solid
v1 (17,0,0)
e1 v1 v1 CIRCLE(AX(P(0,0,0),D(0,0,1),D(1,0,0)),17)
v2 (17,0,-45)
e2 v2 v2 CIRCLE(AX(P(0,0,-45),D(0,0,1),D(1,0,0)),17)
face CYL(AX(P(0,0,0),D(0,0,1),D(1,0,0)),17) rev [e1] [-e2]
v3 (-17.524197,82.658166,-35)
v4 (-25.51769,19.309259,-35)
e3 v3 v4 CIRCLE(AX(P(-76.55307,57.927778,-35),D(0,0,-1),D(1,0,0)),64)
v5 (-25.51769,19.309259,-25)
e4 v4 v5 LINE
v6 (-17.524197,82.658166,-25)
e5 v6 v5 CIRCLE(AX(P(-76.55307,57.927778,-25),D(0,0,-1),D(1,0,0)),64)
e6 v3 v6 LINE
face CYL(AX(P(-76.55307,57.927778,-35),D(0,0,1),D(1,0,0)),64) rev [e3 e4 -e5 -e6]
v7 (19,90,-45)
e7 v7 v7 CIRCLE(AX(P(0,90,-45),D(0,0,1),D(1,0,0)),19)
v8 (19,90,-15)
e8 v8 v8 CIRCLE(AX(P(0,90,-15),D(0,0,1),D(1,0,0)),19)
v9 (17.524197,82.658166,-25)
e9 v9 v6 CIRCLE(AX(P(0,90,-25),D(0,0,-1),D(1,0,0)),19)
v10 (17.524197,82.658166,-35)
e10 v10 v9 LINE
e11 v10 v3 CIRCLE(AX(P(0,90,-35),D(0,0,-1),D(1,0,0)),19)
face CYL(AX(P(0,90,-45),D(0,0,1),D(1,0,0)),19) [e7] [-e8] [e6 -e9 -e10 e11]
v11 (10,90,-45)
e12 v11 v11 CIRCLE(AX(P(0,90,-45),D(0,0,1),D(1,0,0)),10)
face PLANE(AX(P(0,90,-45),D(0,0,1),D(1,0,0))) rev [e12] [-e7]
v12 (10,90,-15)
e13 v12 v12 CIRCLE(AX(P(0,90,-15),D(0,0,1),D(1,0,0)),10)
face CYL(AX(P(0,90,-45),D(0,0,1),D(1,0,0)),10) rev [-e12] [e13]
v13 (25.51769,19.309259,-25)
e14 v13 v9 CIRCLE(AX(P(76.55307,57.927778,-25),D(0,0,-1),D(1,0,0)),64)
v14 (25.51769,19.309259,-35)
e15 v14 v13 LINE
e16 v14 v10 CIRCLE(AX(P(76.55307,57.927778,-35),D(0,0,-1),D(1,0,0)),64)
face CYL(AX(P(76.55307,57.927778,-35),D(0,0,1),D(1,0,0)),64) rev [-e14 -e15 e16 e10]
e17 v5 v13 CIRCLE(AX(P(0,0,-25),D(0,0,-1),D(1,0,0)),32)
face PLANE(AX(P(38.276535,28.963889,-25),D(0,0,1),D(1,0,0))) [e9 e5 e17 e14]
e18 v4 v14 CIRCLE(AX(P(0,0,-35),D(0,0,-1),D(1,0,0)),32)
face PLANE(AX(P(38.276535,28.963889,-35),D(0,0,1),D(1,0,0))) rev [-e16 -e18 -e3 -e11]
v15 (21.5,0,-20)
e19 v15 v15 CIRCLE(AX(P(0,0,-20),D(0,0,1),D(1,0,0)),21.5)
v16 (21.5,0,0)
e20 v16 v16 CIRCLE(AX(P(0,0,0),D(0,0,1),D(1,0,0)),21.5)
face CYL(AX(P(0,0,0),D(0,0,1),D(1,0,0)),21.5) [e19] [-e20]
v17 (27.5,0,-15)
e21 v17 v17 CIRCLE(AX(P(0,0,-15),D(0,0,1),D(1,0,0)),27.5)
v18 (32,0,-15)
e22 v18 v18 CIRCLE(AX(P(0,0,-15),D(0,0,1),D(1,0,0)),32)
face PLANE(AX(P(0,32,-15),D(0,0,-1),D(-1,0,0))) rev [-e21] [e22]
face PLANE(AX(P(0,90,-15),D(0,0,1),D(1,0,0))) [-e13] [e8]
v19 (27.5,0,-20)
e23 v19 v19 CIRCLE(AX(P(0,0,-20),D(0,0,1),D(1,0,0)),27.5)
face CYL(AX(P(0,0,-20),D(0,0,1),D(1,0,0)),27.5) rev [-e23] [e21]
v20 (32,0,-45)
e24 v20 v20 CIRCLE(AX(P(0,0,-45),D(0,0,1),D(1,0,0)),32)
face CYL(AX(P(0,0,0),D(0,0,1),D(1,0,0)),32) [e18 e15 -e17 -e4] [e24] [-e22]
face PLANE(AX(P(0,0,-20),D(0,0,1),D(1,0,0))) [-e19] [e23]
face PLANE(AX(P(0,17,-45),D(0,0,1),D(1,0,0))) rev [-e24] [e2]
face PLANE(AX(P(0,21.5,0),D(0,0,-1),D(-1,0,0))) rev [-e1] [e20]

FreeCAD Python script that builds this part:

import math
import FreeCAD as App
import Part
import Sketcher

V = App.Vector

doc = App.newDocument("Part")
params = doc.addObject("Spreadsheet::Sheet", "Params")
for row, (alias, value) in enumerate([
    ("sketch1_width", "15 mm"),
    ("sketch1_height", "45 mm"),
    ("sketch1_width2", "10.5 mm"),
    ("revolution_angle", "360 deg"),
    ("sketch2_diameter", "55 mm"),
    ("sketch2_diameter2", "43 mm"),
    ("pocket1_length", "5 mm"),
    ("sketch3_diameter", "38 mm"),
    ("sketch3_diameter2", "20 mm"),
    ("pad1_length", "15 mm"),
    ("pad1_length2", "15 mm"),
    ("sketch4_radius", "32 mm"),
    ("sketch4_radius2", "64 mm"),
    ("sketch4_radius3", "19 mm"),
    ("pad2_length", "5 mm"),
    ("pad2_length2", "5 mm"),
], start=1):
    params.set(f"A{row}", alias)
    params.set(f"B{row}", "=" + value)
    params.setAlias(f"B{row}", alias)

body = doc.addObject("PartDesign::Body", "Body")

sketch1 = body.newObject("Sketcher::SketchObject", "Sketch")
sketch1.AttachmentSupport = (doc.getObject("YZ_Plane"), [""])
sketch1.MapMode = "FlatFace"
sketch1.addGeometry(Part.LineSegment(V(17, 0, 0), V(17, -45, 0)), False)
sketch1.addGeometry(Part.LineSegment(V(17, -45, 0), V(32, -45, 0)), False)
sketch1.addGeometry(Part.LineSegment(V(32, -45, 0), V(32, -15, 0)), False)
sketch1.addGeometry(Part.LineSegment(V(32, -15, 0), V(21.5, -15, 0)), False)
sketch1.addGeometry(Part.LineSegment(V(21.5, -15, 0), V(21.5, 0, 0)), False)
sketch1.addGeometry(Part.LineSegment(V(21.5, 0, 0), V(17, 0, 0)), False)
sketch1.addConstraint(Sketcher.Constraint("Coincident", 0, 2, 1, 1))
sketch1.addConstraint(Sketcher.Constraint("Coincident", 1, 2, 2, 1))
sketch1.addConstraint(Sketcher.Constraint("Coincident", 2, 2, 3, 1))
sketch1.addConstraint(Sketcher.Constraint("Coincident", 3, 2, 4, 1))
sketch1.addConstraint(Sketcher.Constraint("Coincident", 4, 2, 5, 1))
sketch1.addConstraint(Sketcher.Constraint("Coincident", 5, 2, 0, 1))
sketch1.addConstraint(Sketcher.Constraint("Vertical", 0))
sketch1.addConstraint(Sketcher.Constraint("Horizontal", 1))
sketch1.addConstraint(Sketcher.Constraint("Vertical", 2))
sketch1.addConstraint(Sketcher.Constraint("Horizontal", 3))
sketch1.addConstraint(Sketcher.Constraint("Vertical", 4))
sketch1.addConstraint(Sketcher.Constraint("Horizontal", 5))
sketch1.addConstraint(Sketcher.Constraint("PointOnObject", 4, 2, -1))
sketch1.addConstraint(Sketcher.Constraint("Equal", 1, 4))
sketch1.addConstraint(Sketcher.Constraint("DistanceX", 1, 1, 1, 2, 15.0))
sketch1.addConstraint(Sketcher.Constraint("DistanceY", 0, 2, 0, 1, 45.0))
sketch1.addConstraint(Sketcher.Constraint("DistanceX", 3, 2, 3, 1, 10.5))
sketch1.addConstraint(Sketcher.Constraint("DistanceX", -1, 1, 0, 2, 17.0))
sketch1.setExpression("Constraints[14]", "Params.sketch1_width")
sketch1.setExpression("Constraints[15]", "Params.sketch1_height")
sketch1.setExpression("Constraints[16]", "Params.sketch1_width2")
revolution = body.newObject("PartDesign::Revolution", "Revolution")
revolution.Profile = sketch1
revolution.ReferenceAxis = (sketch1, ["V_Axis"])
revolution.setExpression("Angle", "Params.revolution_angle")

sketch2 = body.newObject("Sketcher::SketchObject", "Sketch001")
sketch2.AttachmentSupport = (doc.getObject("XY_Plane"), [""])
sketch2.MapMode = "FlatFace"
sketch2.AttachmentOffset = App.Placement(V(0, 0, -15), App.Rotation())
sketch2.addGeometry(Part.Circle(V(0, 0, 0), V(0, 0, 1), 28), False)
sketch2.addGeometry(Part.Circle(V(0, 0, 0), V(0, 0, 1), 22), False)
sketch2.addConstraint(Sketcher.Constraint("Coincident", 0, 3, -1, 1))
sketch2.addConstraint(Sketcher.Constraint("Coincident", 1, 3, -1, 1))
sketch2.addConstraint(Sketcher.Constraint("Diameter", 0, 55.0))
sketch2.addConstraint(Sketcher.Constraint("Diameter", 1, 43.0))
sketch2.setExpression("Constraints[2]", "Params.sketch2_diameter")
sketch2.setExpression("Constraints[3]", "Params.sketch2_diameter2")
pocket1 = body.newObject("PartDesign::Pocket", "Pocket")
pocket1.Profile = sketch2
pocket1.setExpression("Length", "Params.pocket1_length")
body2 = doc.addObject("PartDesign::Body", "Body001")

sketch3 = body2.newObject("Sketcher::SketchObject", "Sketch002")
sketch3.AttachmentSupport = (doc.getObject("XY_Plane001"), [""])
sketch3.MapMode = "FlatFace"
sketch3.AttachmentOffset = App.Placement(V(0, 0, -30), App.Rotation())
sketch3.addGeometry(Part.Circle(V(0, 90, 0), V(0, 0, 1), 19), False)
sketch3.addGeometry(Part.Circle(V(0, 90, 0), V(0, 0, 1), 10), False)
sketch3.addConstraint(Sketcher.Constraint("Coincident", 1, 3, 0, 3))
sketch3.addConstraint(Sketcher.Constraint("PointOnObject", 0, 3, -2))
sketch3.addConstraint(Sketcher.Constraint("Diameter", 0, 38.0))
sketch3.addConstraint(Sketcher.Constraint("Diameter", 1, 20.0))
sketch3.addConstraint(Sketcher.Constraint("DistanceY", -1, 1, 0, 3, 90.0))
sketch3.setExpression("Constraints[2]", "Params.sketch3_diameter")
sketch3.setExpression("Constraints[3]", "Params.sketch3_diameter2")
pad1 = body2.newObject("PartDesign::Pad", "Pad")
pad1.Profile = sketch3
pad1.Type = "TwoLengths"
pad1.setExpression("Length", "Params.pad1_length")
pad1.setExpression("Length2", "Params.pad1_length2")
body.AllowCompound = True
doc.recompute()

boolean = body.newObject("PartDesign::Boolean", "Boolean")
boolean.Type = "Fuse"
boolean.addObjects([body2])

sketch4 = body.newObject("Sketcher::SketchObject", "Sketch003")
sketch4.AttachmentSupport = (doc.getObject("XY_Plane"), [""])
sketch4.MapMode = "FlatFace"
sketch4.AttachmentOffset = App.Placement(V(0, 0, -30), App.Rotation())
sketch4.addGeometry(Part.ArcOfCircle(Part.Circle(V(0, 0, 0), V(0, 0, 1), 32), math.radians(37), math.radians(143)), False)
sketch4.addGeometry(Part.ArcOfCircle(Part.Circle(V(77, 58, 0), V(0, 0, 1), 64), math.radians(157), math.radians(217)), False)
sketch4.addGeometry(Part.ArcOfCircle(Part.Circle(V(0, 90, 0), V(0, 0, 1), 19), math.radians(-157), math.radians(-23)), False)
sketch4.addGeometry(Part.ArcOfCircle(Part.Circle(V(-77, 58, 0), V(0, 0, 1), 64), math.radians(-37), math.radians(23)), False)
sketch4.addConstraint(Sketcher.Constraint("Tangent", 0, 1, 1, 2))
sketch4.addConstraint(Sketcher.Constraint("Tangent", 1, 1, 2, 2))
sketch4.addConstraint(Sketcher.Constraint("Tangent", 2, 1, 3, 2))
sketch4.addConstraint(Sketcher.Constraint("Tangent", 3, 1, 0, 2))
sketch4.addConstraint(Sketcher.Constraint("Coincident", 0, 3, -1, 1))
sketch4.addConstraint(Sketcher.Constraint("Equal", 1, 3))
sketch4.addConstraint(Sketcher.Constraint("PointOnObject", 2, 3, -2))
sketch4.addConstraint(Sketcher.Constraint("Radius", 0, 32.0))
sketch4.addConstraint(Sketcher.Constraint("Radius", 1, 64.0))
sketch4.addConstraint(Sketcher.Constraint("Radius", 2, 19.0))
sketch4.addConstraint(Sketcher.Constraint("DistanceY", -1, 1, 2, 3, 90.0))
sketch4.setExpression("Constraints[7]", "Params.sketch4_radius")
sketch4.setExpression("Constraints[8]", "Params.sketch4_radius2")
sketch4.setExpression("Constraints[9]", "Params.sketch4_radius3")
pad2 = body.newObject("PartDesign::Pad", "Pad001")
pad2.Profile = sketch4
pad2.Type = "TwoLengths"
pad2.setExpression("Length", "Params.pad2_length")
pad2.setExpression("Length2", "Params.pad2_length2")

doc.recompute()
